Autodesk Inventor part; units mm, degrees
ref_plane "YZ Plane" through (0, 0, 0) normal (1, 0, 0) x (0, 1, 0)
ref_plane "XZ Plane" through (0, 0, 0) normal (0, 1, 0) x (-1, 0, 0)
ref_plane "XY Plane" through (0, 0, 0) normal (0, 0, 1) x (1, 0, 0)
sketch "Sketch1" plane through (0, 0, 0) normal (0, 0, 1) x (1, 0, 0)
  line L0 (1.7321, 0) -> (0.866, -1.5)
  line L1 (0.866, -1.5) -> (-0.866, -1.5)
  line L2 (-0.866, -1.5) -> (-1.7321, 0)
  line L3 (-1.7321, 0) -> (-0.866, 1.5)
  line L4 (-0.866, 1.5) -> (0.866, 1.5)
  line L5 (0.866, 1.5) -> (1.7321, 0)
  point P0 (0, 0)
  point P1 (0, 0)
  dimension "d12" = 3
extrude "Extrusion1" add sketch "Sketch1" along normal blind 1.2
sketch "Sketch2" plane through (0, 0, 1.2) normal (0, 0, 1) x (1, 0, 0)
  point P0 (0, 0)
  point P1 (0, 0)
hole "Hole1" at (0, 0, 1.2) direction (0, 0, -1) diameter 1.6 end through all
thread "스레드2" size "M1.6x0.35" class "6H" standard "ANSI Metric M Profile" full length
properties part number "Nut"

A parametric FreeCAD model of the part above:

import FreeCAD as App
import Part
import Sketcher

doc = App.newDocument("Part")
body = doc.addObject("PartDesign::Body", "Body")

# Sketch on XY plane
sketch1 = body.newObject("Sketcher::SketchObject", "Sketch")
sketch1.AttachmentSupport = (doc.getObject("XY_Plane"), [""])
sketch1.MapMode = "FlatFace"
sketch1.addGeometry([
    Part.LineSegment(App.Vector(0.9, -1.5, 0), App.Vector(1.7, 0, 0)),  # 0
    Part.LineSegment(App.Vector(1.7, 0, 0), App.Vector(0.9, 1.5, 0)),  # 1
    Part.LineSegment(App.Vector(0.9, 1.5, 0), App.Vector(-0.9, 1.5, 0)),  # 2
    Part.LineSegment(App.Vector(-0.9, 1.5, 0), App.Vector(-1.7, 0, 0)),  # 3
    Part.LineSegment(App.Vector(-1.7, 0, 0), App.Vector(-0.9, -1.5, 0)),  # 4
    Part.LineSegment(App.Vector(-0.9, -1.5, 0), App.Vector(0.9, -1.5, 0)),  # 5
], False)
sketch1.addConstraint([
    Sketcher.Constraint("Coincident", 0, 2, 1, 1),
    Sketcher.Constraint("Coincident", 1, 2, 2, 1),
    Sketcher.Constraint("Coincident", 2, 2, 3, 1),
    Sketcher.Constraint("Coincident", 3, 2, 4, 1),
    Sketcher.Constraint("Coincident", 4, 2, 5, 1),
    Sketcher.Constraint("Coincident", 5, 2, 0, 1),
    Sketcher.Constraint("Horizontal", 2),
    Sketcher.Constraint("Horizontal", 5),
    Sketcher.Constraint("Symmetric", 0, 2, 3, 2, -1, 1),
    Sketcher.Constraint("Symmetric", 1, 2, 4, 2, -1, 1),
    Sketcher.Constraint("PointOnObject", 0, 2, -1),
    Sketcher.Constraint("Parallel", 0, 3),
    Sketcher.Constraint("Vertical", 2, 2, 4, 2),
    Sketcher.Constraint("DistanceY", 4, 2, 2, 2, 3.0),
    Sketcher.Constraint("DistanceX", 2, 2, 2, 1, 1.732),
    Sketcher.Constraint("Distance", 0, 1.732),
])
pad1 = body.newObject("PartDesign::Pad", "Pad")
pad1.Profile = sketch1
pad1.Length = 1.2

# Sketch on XY plane
sketch2 = body.newObject("Sketcher::SketchObject", "Sketch001")
sketch2.AttachmentSupport = (doc.getObject("XY_Plane"), [""])
sketch2.MapMode = "FlatFace"
sketch2.AttachmentOffset = App.Placement(App.Vector(0, 0, 1.2), App.Rotation())
sketch2.addGeometry(Part.Circle(App.Vector(0, 0, 0), App.Vector(0, 0, 1), 0.8), False)
sketch2.addConstraint([
    Sketcher.Constraint("Coincident", 0, 3, -1, 1),
    Sketcher.Constraint("Diameter", 0, 1.6),
])
doc.recompute()
hole = body.newObject("PartDesign::Hole", "Hole")
hole.Profile = sketch2
hole.ThreadType = "None"
hole.Diameter = 1.6
hole.DepthType = "ThroughAll"

doc.recompute()
